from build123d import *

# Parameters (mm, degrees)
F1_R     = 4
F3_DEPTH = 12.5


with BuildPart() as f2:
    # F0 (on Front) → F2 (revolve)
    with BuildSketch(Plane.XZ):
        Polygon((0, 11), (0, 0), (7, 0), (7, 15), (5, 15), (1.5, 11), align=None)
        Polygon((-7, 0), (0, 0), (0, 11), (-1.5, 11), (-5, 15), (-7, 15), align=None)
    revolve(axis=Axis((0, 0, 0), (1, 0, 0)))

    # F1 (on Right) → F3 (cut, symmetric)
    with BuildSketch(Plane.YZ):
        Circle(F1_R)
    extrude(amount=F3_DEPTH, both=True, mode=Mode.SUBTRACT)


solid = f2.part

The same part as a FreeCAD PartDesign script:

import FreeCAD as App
import Part
import Sketcher

V = App.Vector
Q = App.Units.Quantity


def add_polygon(sketch, points):
    """Adds a closed chain of lines whose ends are joined by coincident constraints."""
    first, n = sketch.GeometryCount, len(points)
    for a, b in zip(points, points[1:] + points[:1]):
        sketch.addGeometry(Part.LineSegment(App.Vector(*a, 0), App.Vector(*b, 0)), False)
    for i in range(n):
        sketch.addConstraint(Sketcher.Constraint("Coincident", first + i, 2, first + (i + 1) % n, 1))

doc = App.newDocument("Part")
body = doc.addObject("PartDesign::Body", "Body")

# Sketch on XZ plane
sketch1 = doc.addObject("Sketcher::SketchObject", "Sketch")
body.addObject(sketch1)
sketch1.AttachmentSupport = (doc.XZ_Plane, [""])
sketch1.MapMode = "FlatFace"
add_polygon(sketch1, [(7, 0), (7, 15), (5, 15), (1.5, 11), (-1.5, 11), (-5, 15), (-7, 15), (-7, 0)])  # lines 0-7
sketch1.addConstraint(Sketcher.Constraint("Vertical", 0))
sketch1.addConstraint(Sketcher.Constraint("Horizontal", 1))
sketch1.addConstraint(Sketcher.Constraint("Horizontal", 3))
sketch1.addConstraint(Sketcher.Constraint("Horizontal", 5))
sketch1.addConstraint(Sketcher.Constraint("Vertical", 6))
sketch1.addConstraint(Sketcher.Constraint("Horizontal", 7))
sketch1.addConstraint(Sketcher.Constraint("Symmetric", 6, 2, 7, 2, -1, 1))
sketch1.addConstraint(Sketcher.Constraint("Symmetric", 1, 2, 4, 2, -2))
sketch1.addConstraint(Sketcher.Constraint("Equal", 2, 4))
sketch1.addConstraint(Sketcher.Constraint("DistanceX", 1, 2, 1, 1, Q("2 mm")))
sketch1.addConstraint(Sketcher.Constraint("DistanceX", 3, 2, 3, 1, Q("3 mm")))
sketch1.addConstraint(Sketcher.Constraint("DistanceX", 7, 1, 7, 2, Q("14 mm")))
sketch1.addConstraint(Sketcher.Constraint("DistanceY", 0, 1, 0, 2, Q("15 mm")))
sketch1.addConstraint(Sketcher.Constraint("DistanceY", -1, 1, 2, 2, Q("11 mm")))
revolution = doc.addObject("PartDesign::Revolution", "Revolution")
body.addObject(revolution)
revolution.Profile = sketch1
revolution.ReferenceAxis = (sketch1, ["H_Axis"])
revolution.Angle = 360

# Sketch on YZ plane
sketch2 = doc.addObject("Sketcher::SketchObject", "Sketch001")
body.addObject(sketch2)
sketch2.AttachmentSupport = (doc.YZ_Plane, [""])
sketch2.MapMode = "FlatFace"
sketch2.addGeometry(Part.Circle(V(0, 0, 0), V(0, 0, 1), 4), False)
sketch2.addConstraint(Sketcher.Constraint("Coincident", 0, 3, -1, 1))
sketch2.addConstraint(Sketcher.Constraint("Diameter", 0, Q("8 mm")))
pocket1 = doc.addObject("PartDesign::Pocket", "Pocket")
body.addObject(pocket1)
pocket1.Profile = sketch2
pocket1.Length = 25
pocket1.Midplane = True

doc.recompute()
